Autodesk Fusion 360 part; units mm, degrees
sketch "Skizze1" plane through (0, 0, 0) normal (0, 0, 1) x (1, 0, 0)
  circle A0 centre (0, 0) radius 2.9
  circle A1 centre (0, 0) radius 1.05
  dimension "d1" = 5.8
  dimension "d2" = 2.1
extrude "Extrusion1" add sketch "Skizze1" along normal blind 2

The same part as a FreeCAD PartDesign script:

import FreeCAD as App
import Part
import Sketcher
Q = App.Units.Quantity

doc = App.newDocument("Part")
body = doc.addObject("PartDesign::Body", "Body")

# Sketch on XY plane
sketch1 = doc.addObject("Sketcher::SketchObject", "Sketch")
body.addObject(sketch1)
sketch1.AttachmentSupport = (doc.XY_Plane, [""])
sketch1.MapMode = "FlatFace"
sketch1.addGeometry(Part.Circle(App.Vector(0, 0, 0), App.Vector(0, 0, 1), 2.9), False)
sketch1.addGeometry(Part.Circle(App.Vector(0, 0, 0), App.Vector(0, 0, 1), 1.1), False)
sketch1.addConstraint(Sketcher.Constraint("Coincident", 0, 3, -1, 1))
sketch1.addConstraint(Sketcher.Constraint("Coincident", 1, 3, -1, 1))
sketch1.addConstraint(Sketcher.Constraint("Diameter", 0, Q("5.8 mm")))
sketch1.addConstraint(Sketcher.Constraint("Diameter", 1, Q("2.1 mm")))
pad1 = doc.addObject("PartDesign::Pad", "Pad")
body.addObject(pad1)
pad1.Profile = sketch1
pad1.Length = 2

doc.recompute()
